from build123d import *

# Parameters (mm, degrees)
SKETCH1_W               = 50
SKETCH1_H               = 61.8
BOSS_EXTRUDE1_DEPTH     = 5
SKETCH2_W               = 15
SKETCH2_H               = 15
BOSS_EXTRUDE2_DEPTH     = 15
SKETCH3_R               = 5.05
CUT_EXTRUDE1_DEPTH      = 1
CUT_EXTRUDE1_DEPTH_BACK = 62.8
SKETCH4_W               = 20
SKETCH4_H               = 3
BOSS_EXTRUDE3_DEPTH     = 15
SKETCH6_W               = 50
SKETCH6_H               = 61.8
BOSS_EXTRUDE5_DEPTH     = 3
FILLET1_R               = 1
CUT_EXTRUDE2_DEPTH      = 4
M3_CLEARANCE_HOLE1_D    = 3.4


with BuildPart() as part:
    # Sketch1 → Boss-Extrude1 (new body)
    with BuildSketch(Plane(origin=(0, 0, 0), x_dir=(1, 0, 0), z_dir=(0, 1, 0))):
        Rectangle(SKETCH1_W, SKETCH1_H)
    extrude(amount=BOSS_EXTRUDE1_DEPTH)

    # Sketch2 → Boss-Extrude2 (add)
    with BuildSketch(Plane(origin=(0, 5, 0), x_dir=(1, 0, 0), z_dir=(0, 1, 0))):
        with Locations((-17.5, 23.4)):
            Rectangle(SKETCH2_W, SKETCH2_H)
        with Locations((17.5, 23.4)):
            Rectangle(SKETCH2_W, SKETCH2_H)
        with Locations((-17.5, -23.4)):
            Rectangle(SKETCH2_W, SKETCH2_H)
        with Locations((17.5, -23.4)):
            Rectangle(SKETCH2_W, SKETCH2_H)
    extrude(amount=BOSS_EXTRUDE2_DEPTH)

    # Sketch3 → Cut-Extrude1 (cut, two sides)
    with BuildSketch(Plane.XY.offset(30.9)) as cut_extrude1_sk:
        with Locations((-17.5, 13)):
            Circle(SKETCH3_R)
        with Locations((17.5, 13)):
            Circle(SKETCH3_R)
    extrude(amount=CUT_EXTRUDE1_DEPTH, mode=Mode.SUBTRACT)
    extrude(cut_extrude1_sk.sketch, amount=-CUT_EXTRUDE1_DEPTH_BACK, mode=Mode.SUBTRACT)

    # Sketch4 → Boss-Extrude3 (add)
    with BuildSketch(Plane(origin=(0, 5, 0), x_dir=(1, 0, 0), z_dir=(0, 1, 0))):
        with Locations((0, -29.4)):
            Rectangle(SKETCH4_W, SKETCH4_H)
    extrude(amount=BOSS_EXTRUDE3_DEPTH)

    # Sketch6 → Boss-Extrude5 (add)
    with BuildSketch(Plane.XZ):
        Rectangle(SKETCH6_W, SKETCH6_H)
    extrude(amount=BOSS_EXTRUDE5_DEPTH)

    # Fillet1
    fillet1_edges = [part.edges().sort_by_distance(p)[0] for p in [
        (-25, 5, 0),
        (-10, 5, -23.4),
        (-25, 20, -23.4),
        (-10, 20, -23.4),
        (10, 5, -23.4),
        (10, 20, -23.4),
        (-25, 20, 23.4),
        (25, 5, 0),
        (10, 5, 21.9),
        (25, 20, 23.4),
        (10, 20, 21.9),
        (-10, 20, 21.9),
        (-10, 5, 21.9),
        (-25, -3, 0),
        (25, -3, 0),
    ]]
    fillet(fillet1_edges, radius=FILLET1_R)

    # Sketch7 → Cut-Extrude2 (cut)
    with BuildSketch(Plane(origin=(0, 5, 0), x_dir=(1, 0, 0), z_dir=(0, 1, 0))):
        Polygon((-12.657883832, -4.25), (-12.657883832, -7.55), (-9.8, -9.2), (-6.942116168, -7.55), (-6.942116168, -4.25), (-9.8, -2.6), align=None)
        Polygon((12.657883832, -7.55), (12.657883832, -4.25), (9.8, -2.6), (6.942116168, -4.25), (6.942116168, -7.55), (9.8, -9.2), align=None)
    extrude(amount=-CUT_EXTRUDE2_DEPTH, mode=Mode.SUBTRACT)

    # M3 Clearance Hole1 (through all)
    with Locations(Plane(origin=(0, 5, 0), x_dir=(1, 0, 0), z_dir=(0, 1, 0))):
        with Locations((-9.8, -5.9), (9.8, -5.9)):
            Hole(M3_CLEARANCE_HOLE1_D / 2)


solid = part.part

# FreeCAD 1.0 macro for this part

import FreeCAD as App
import Part
import Sketcher
from FreeCAD import Vector
Q = App.Units.Quantity


def edges_at(feature, points):
    """Names of the edges that pass closest to the given points."""
    edges = feature.Shape.Edges
    near = lambda p: min(range(len(edges)), key=lambda i: edges[i].distToShape(Part.Vertex(*p))[0])
    return sorted({f"Edge{near(p) + 1}" for p in points})

doc = App.newDocument("Part")
params = doc.addObject("Spreadsheet::Sheet", "Params")
for row, (alias, value) in enumerate([
    ("sketch1_width", "50 mm"),
    ("sketch1_height", "61.8 mm"),
    ("pad1_length", "5 mm"),
    ("sketch2_width", "15 mm"),
    ("pad2_length", "15 mm"),
    ("sketch3_diameter", "10.1 mm"),
    ("sketch4_width", "20 mm"),
    ("sketch4_height", "3 mm"),
    ("pad3_length", "15 mm"),
    ("sketch5_width", "50 mm"),
    ("sketch5_height", "61.8 mm"),
    ("pad4_length", "3 mm"),
    ("fillet_radius", "1 mm"),
    ("sketch6_height", "3.3 mm"),
    ("sketch6_length", "3.3 mm"),
    ("pocket2_length", "4 mm"),
    ("sketch7_diameter", "3.4 mm"),
    ("hole_diameter", "3.4 mm"),
], start=1):
    params.set(f"A{row}", alias)
    params.set(f"B{row}", "=" + value)
    params.setAlias(f"B{row}", alias)

body = doc.addObject("PartDesign::Body", "Body")

# Sketch on XZ plane
sketch1 = doc.addObject("Sketcher::SketchObject", "Sketch")
body.addObject(sketch1)
sketch1.AttachmentSupport = (doc.XZ_Plane, [""])
sketch1.MapMode = "FlatFace"
sketch1.addGeometry([
    Part.LineSegment(Vector(-25, -30.9, 0), Vector(-25, 30.9, 0)),
    Part.LineSegment(Vector(-25, 30.9, 0), Vector(25, 30.9, 0)),
    Part.LineSegment(Vector(25, 30.9, 0), Vector(25, -30.9, 0)),
    Part.LineSegment(Vector(25, -30.9, 0), Vector(-25, -30.9, 0)),
], False)
sketch1.addConstraint([
    Sketcher.Constraint("Coincident", 0, 2, 1, 1),
    Sketcher.Constraint("Coincident", 1, 2, 2, 1),
    Sketcher.Constraint("Coincident", 2, 2, 3, 1),
    Sketcher.Constraint("Coincident", 3, 2, 0, 1),
    Sketcher.Constraint("Vertical", 0),
    Sketcher.Constraint("Horizontal", 1),
    Sketcher.Constraint("Vertical", 2),
    Sketcher.Constraint("Horizontal", 3),
    Sketcher.Constraint("Symmetric", 0, 2, 2, 2, -1, 1),
    Sketcher.Constraint("DistanceX", 1, 1, 1, 2, 50.0),
    Sketcher.Constraint("DistanceY", 0, 1, 0, 2, 61.8),
])
sketch1.setExpression("Constraints[9]", "Params.sketch1_width")
sketch1.setExpression("Constraints[10]", "Params.sketch1_height")
pad1 = doc.addObject("PartDesign::Pad", "Pad")
body.addObject(pad1)
pad1.Profile = sketch1
pad1.setExpression("Length", "Params.pad1_length")
pad1.Reversed = True

# Sketch on XZ plane
sketch2 = doc.addObject("Sketcher::SketchObject", "Sketch001")
body.addObject(sketch2)
sketch2.AttachmentSupport = (doc.XZ_Plane, [""])
sketch2.MapMode = "FlatFace"
sketch2.AttachmentOffset = App.Placement(Vector(0, 0, -5), App.Rotation())
sketch2.addGeometry([
    Part.LineSegment(Vector(-25, -30.9, 0), Vector(-25, -15.9, 0)),  # 0
    Part.LineSegment(Vector(-25, -15.9, 0), Vector(-10, -15.9, 0)),  # 1
    Part.LineSegment(Vector(-10, -15.9, 0), Vector(-10, -30.9, 0)),  # 2
    Part.LineSegment(Vector(-10, -30.9, 0), Vector(-25, -30.9, 0)),  # 3
    Part.LineSegment(Vector(10, -30.9, 0), Vector(10, -15.9, 0)),  # 4
    Part.LineSegment(Vector(10, -15.9, 0), Vector(25, -15.9, 0)),  # 5
    Part.LineSegment(Vector(25, -15.9, 0), Vector(25, -30.9, 0)),  # 6
    Part.LineSegment(Vector(25, -30.9, 0), Vector(10, -30.9, 0)),  # 7
    Part.LineSegment(Vector(-25, 15.9, 0), Vector(-25, 30.9, 0)),  # 8
    Part.LineSegment(Vector(-25, 30.9, 0), Vector(-10, 30.9, 0)),  # 9
    Part.LineSegment(Vector(-10, 30.9, 0), Vector(-10, 15.9, 0)),  # 10
    Part.LineSegment(Vector(-10, 15.9, 0), Vector(-25, 15.9, 0)),  # 11
    Part.LineSegment(Vector(10, 15.9, 0), Vector(10, 30.9, 0)),  # 12
    Part.LineSegment(Vector(10, 30.9, 0), Vector(25, 30.9, 0)),  # 13
    Part.LineSegment(Vector(25, 30.9, 0), Vector(25, 15.9, 0)),  # 14
    Part.LineSegment(Vector(25, 15.9, 0), Vector(10, 15.9, 0)),  # 15
], False)
sketch2.addConstraint([
    Sketcher.Constraint("Coincident", 0, 2, 1, 1),
    Sketcher.Constraint("Coincident", 1, 2, 2, 1),
    Sketcher.Constraint("Coincident", 2, 2, 3, 1),
    Sketcher.Constraint("Coincident", 3, 2, 0, 1),
    Sketcher.Constraint("Coincident", 4, 2, 5, 1),
    Sketcher.Constraint("Coincident", 5, 2, 6, 1),
    Sketcher.Constraint("Coincident", 6, 2, 7, 1),
    Sketcher.Constraint("Coincident", 7, 2, 4, 1),
    Sketcher.Constraint("Coincident", 8, 2, 9, 1),
    Sketcher.Constraint("Coincident", 9, 2, 10, 1),
    Sketcher.Constraint("Coincident", 10, 2, 11, 1),
    Sketcher.Constraint("Coincident", 11, 2, 8, 1),
    Sketcher.Constraint("Coincident", 12, 2, 13, 1),
    Sketcher.Constraint("Coincident", 13, 2, 14, 1),
    Sketcher.Constraint("Coincident", 14, 2, 15, 1),
    Sketcher.Constraint("Coincident", 15, 2, 12, 1),
    Sketcher.Constraint("Vertical", 0),
    Sketcher.Constraint("Horizontal", 1),
    Sketcher.Constraint("Vertical", 2),
    Sketcher.Constraint("Horizontal", 3),
    Sketcher.Constraint("Vertical", 4),
    Sketcher.Constraint("Horizontal", 5),
    Sketcher.Constraint("Vertical", 6),
    Sketcher.Constraint("Horizontal", 7),
    Sketcher.Constraint("Vertical", 8),
    Sketcher.Constraint("Horizontal", 9),
    Sketcher.Constraint("Vertical", 10),
    Sketcher.Constraint("Horizontal", 11),
    Sketcher.Constraint("Vertical", 12),
    Sketcher.Constraint("Horizontal", 13),
    Sketcher.Constraint("Vertical", 14),
    Sketcher.Constraint("Horizontal", 15),
    Sketcher.Constraint("Symmetric", 6, 2, 8, 2, -1, 1),
    Sketcher.Constraint("Symmetric", 4, 2, 10, 2, -1, 1),
    Sketcher.Constraint("Symmetric", 2, 2, 12, 2, -1, 1),
    Sketcher.Constraint("Symmetric", 0, 2, 14, 2, -1, 1),
    Sketcher.Constraint("Symmetric", 1, 2, 4, 2, -2),
    Sketcher.Constraint("Symmetric", 3, 2, 6, 2, -2),
    Sketcher.Constraint("Equal", 15, 0),
    Sketcher.Constraint("DistanceX", 1, 1, 1, 2, 15.0),
    Sketcher.Constraint("DistanceX", 0, 2, -1, 1, 25.0),
    Sketcher.Constraint("DistanceY", 0, 2, -1, 1, 15.9),
])
sketch2.setExpression("Constraints[39]", "Params.sketch2_width")
pad2 = doc.addObject("PartDesign::Pad", "Pad001")
body.addObject(pad2)
pad2.Profile = sketch2
pad2.setExpression("Length", "Params.pad2_length")
pad2.Reversed = True

# Sketch on XY plane
sketch3 = doc.addObject("Sketcher::SketchObject", "Sketch002")
body.addObject(sketch3)
sketch3.AttachmentSupport = (doc.XY_Plane, [""])
sketch3.MapMode = "FlatFace"
sketch3.AttachmentOffset = App.Placement(Vector(0, 0, 30.9), App.Rotation())
sketch3.addGeometry([
    Part.Circle(Vector(-17.5, 13, 0), Vector(0, 0, 1), 5.05),
    Part.Circle(Vector(17.5, 13, 0), Vector(0, 0, 1), 5.05),
], False)
sketch3.addConstraint([
    Sketcher.Constraint("Equal", 0, 1),
    Sketcher.Constraint("Symmetric", 0, 3, 1, 3, -2),
    Sketcher.Constraint("Diameter", 0, 10.1),
    Sketcher.Constraint("DistanceY", -1, 1, 0, 3, 13.0),
    Sketcher.Constraint("DistanceX", 0, 3, 1, 3, 35.0),
])
sketch3.setExpression("Constraints[2]", "Params.sketch3_diameter")
pocket1 = doc.addObject("PartDesign::Pocket", "Pocket")
body.addObject(pocket1)
pocket1.Profile = sketch3
pocket1.Type = "ThroughAll"
pocket1.Midplane = True

# Sketch on XZ plane
sketch4 = doc.addObject("Sketcher::SketchObject", "Sketch003")
body.addObject(sketch4)
sketch4.AttachmentSupport = (doc.XZ_Plane, [""])
sketch4.MapMode = "FlatFace"
sketch4.AttachmentOffset = App.Placement(Vector(0, 0, -5), App.Rotation())
sketch4.addGeometry([
    Part.LineSegment(Vector(-10, 27.9, 0), Vector(-10, 30.9, 0)),
    Part.LineSegment(Vector(-10, 30.9, 0), Vector(10, 30.9, 0)),
    Part.LineSegment(Vector(10, 30.9, 0), Vector(10, 27.9, 0)),
    Part.LineSegment(Vector(10, 27.9, 0), Vector(-10, 27.9, 0)),
], False)
sketch4.addConstraint([
    Sketcher.Constraint("Coincident", 0, 2, 1, 1),
    Sketcher.Constraint("Coincident", 1, 2, 2, 1),
    Sketcher.Constraint("Coincident", 2, 2, 3, 1),
    Sketcher.Constraint("Coincident", 3, 2, 0, 1),
    Sketcher.Constraint("Vertical", 0),
    Sketcher.Constraint("Horizontal", 1),
    Sketcher.Constraint("Vertical", 2),
    Sketcher.Constraint("Horizontal", 3),
    Sketcher.Constraint("DistanceX", 1, 1, 1, 2, 20.0),
    Sketcher.Constraint("DistanceY", 0, 1, 0, 2, 3.0),
    Sketcher.Constraint("DistanceX", 0, 2, -1, 1, 10.0),
    Sketcher.Constraint("DistanceY", -1, 1, 0, 2, 30.9),
])
sketch4.setExpression("Constraints[8]", "Params.sketch4_width")
sketch4.setExpression("Constraints[9]", "Params.sketch4_height")
pad3 = doc.addObject("PartDesign::Pad", "Pad002")
body.addObject(pad3)
pad3.Profile = sketch4
pad3.setExpression("Length", "Params.pad3_length")
pad3.Reversed = True

# Sketch on XZ plane
sketch5 = doc.addObject("Sketcher::SketchObject", "Sketch004")
body.addObject(sketch5)
sketch5.AttachmentSupport = (doc.XZ_Plane, [""])
sketch5.MapMode = "FlatFace"
sketch5.addGeometry([
    Part.LineSegment(Vector(-25, 30.9, 0), Vector(-25, -30.9, 0)),
    Part.LineSegment(Vector(-25, -30.9, 0), Vector(25, -30.9, 0)),
    Part.LineSegment(Vector(25, -30.9, 0), Vector(25, 30.9, 0)),
    Part.LineSegment(Vector(25, 30.9, 0), Vector(-25, 30.9, 0)),
], False)
sketch5.addConstraint([
    Sketcher.Constraint("Coincident", 0, 2, 1, 1),
    Sketcher.Constraint("Coincident", 1, 2, 2, 1),
    Sketcher.Constraint("Coincident", 2, 2, 3, 1),
    Sketcher.Constraint("Coincident", 3, 2, 0, 1),
    Sketcher.Constraint("Vertical", 0),
    Sketcher.Constraint("Horizontal", 1),
    Sketcher.Constraint("Vertical", 2),
    Sketcher.Constraint("Horizontal", 3),
    Sketcher.Constraint("Symmetric", 0, 2, 2, 2, -1, 1),
    Sketcher.Constraint("DistanceX", 1, 1, 1, 2, 50.0),
    Sketcher.Constraint("DistanceY", 0, 2, 0, 1, 61.8),
])
sketch5.setExpression("Constraints[9]", "Params.sketch5_width")
sketch5.setExpression("Constraints[10]", "Params.sketch5_height")
pad4 = doc.addObject("PartDesign::Pad", "Pad003")
body.addObject(pad4)
pad4.Profile = sketch5
pad4.setExpression("Length", "Params.pad4_length")
doc.recompute()

fillet = doc.addObject("PartDesign::Fillet", "Fillet")
body.addObject(fillet)
fillet.Base = (pad4, edges_at(pad4, [
    (-25, 5, 0),
    (-10, 5, -23.4),
    (-25, 20, -23.4),
    (-10, 20, -23.4),
    (10, 5, -23.4),
    (10, 20, -23.4),
    (-25, 20, 23.4),
    (25, 5, 0),
    (10, 5, 21.9),
    (25, 20, 23.4),
    (10, 20, 21.9),
    (-10, 20, 21.9),
    (-10, 5, 21.9),
    (-25, -3, 0),
    (25, -3, 0),
]))
fillet.setExpression("Radius", "Params.fillet_radius")

# Sketch on XZ plane
sketch6 = doc.addObject("Sketcher::SketchObject", "Sketch005")
body.addObject(sketch6)
sketch6.AttachmentSupport = (doc.XZ_Plane, [""])
sketch6.MapMode = "FlatFace"
sketch6.AttachmentOffset = App.Placement(Vector(0, 0, -5), App.Rotation())
sketch6.addGeometry([
    Part.LineSegment(Vector(-12.657884, 4.25, 0), Vector(-12.657884, 7.55, 0)),  # 0
    Part.LineSegment(Vector(-12.657884, 7.55, 0), Vector(-9.8, 9.2, 0)),  # 1
    Part.LineSegment(Vector(-9.8, 9.2, 0), Vector(-6.942116, 7.55, 0)),  # 2
    Part.LineSegment(Vector(-6.942116, 7.55, 0), Vector(-6.942116, 4.25, 0)),  # 3
    Part.LineSegment(Vector(-6.942116, 4.25, 0), Vector(-9.8, 2.6, 0)),  # 4
    Part.LineSegment(Vector(-9.8, 2.6, 0), Vector(-12.657884, 4.25, 0)),  # 5
    Part.LineSegment(Vector(12.657884, 7.55, 0), Vector(12.657884, 4.25, 0)),  # 6
    Part.LineSegment(Vector(12.657884, 4.25, 0), Vector(9.8, 2.6, 0)),  # 7
    Part.LineSegment(Vector(9.8, 2.6, 0), Vector(6.942116, 4.25, 0)),  # 8
    Part.LineSegment(Vector(6.942116, 4.25, 0), Vector(6.942116, 7.55, 0)),  # 9
    Part.LineSegment(Vector(6.942116, 7.55, 0), Vector(9.8, 9.2, 0)),  # 10
    Part.LineSegment(Vector(9.8, 9.2, 0), Vector(12.657884, 7.55, 0)),  # 11
], False)
sketch6.addConstraint([
    Sketcher.Constraint("Coincident", 0, 2, 1, 1),
    Sketcher.Constraint("Coincident", 1, 2, 2, 1),
    Sketcher.Constraint("Coincident", 2, 2, 3, 1),
    Sketcher.Constraint("Coincident", 3, 2, 4, 1),
    Sketcher.Constraint("Coincident", 4, 2, 5, 1),
    Sketcher.Constraint("Coincident", 5, 2, 0, 1),
    Sketcher.Constraint("Coincident", 6, 2, 7, 1),
    Sketcher.Constraint("Coincident", 7, 2, 8, 1),
    Sketcher.Constraint("Coincident", 8, 2, 9, 1),
    Sketcher.Constraint("Coincident", 9, 2, 10, 1),
    Sketcher.Constraint("Coincident", 10, 2, 11, 1),
    Sketcher.Constraint("Coincident", 11, 2, 6, 1),
    Sketcher.Constraint("Vertical", 0),
    Sketcher.Constraint("Vertical", 3),
    Sketcher.Constraint("Vertical", 6),
    Sketcher.Constraint("Vertical", 9),
    Sketcher.Constraint("Symmetric", 5, 2, 6, 2, -2),
    Sketcher.Constraint("Symmetric", 4, 2, 7, 2, -2),
    Sketcher.Constraint("Symmetric", 3, 2, 8, 2, -2),
    Sketcher.Constraint("Symmetric", 1, 2, 10, 2, -2),
    Sketcher.Constraint("Parallel", 1, 4),
    Sketcher.Constraint("Parallel", 2, 5),
    Sketcher.Constraint("Parallel", 4, 7),
    Sketcher.Constraint("Parallel", 7, 10),
    Sketcher.Constraint("Parallel", 8, 11),
    Sketcher.Constraint("Horizontal", 0, 2, 2, 2),
    Sketcher.Constraint("Horizontal", 3, 2, 5, 2),
    Sketcher.Constraint("Angle", 1, Q("30 deg")),
    Sketcher.Constraint("DistanceY", 0, 1, 0, 2, 3.3),
    Sketcher.Constraint("Distance", 1, 3.3),
    Sketcher.Constraint("DistanceX", 1, 2, -1, 1, 9.8),
    Sketcher.Constraint("DistanceY", -1, 1, 1, 2, 9.2),
])
sketch6.setExpression("Constraints[28]", "Params.sketch6_height")
sketch6.setExpression("Constraints[29]", "Params.sketch6_length")
pocket2 = doc.addObject("PartDesign::Pocket", "Pocket001")
body.addObject(pocket2)
pocket2.Profile = sketch6
pocket2.setExpression("Length", "Params.pocket2_length")
pocket2.Reversed = True

# Sketch on XZ plane
sketch7 = doc.addObject("Sketcher::SketchObject", "Sketch006")
body.addObject(sketch7)
sketch7.AttachmentSupport = (doc.XZ_Plane, [""])
sketch7.MapMode = "FlatFace"
sketch7.AttachmentOffset = App.Placement(Vector(0, 0, -5), App.Rotation())
sketch7.addGeometry([
    Part.Circle(Vector(-9.8, 5.9, 0), Vector(0, 0, 1), 1.7),
    Part.Circle(Vector(9.8, 5.9, 0), Vector(0, 0, 1), 1.7),
], False)
sketch7.addConstraint([
    Sketcher.Constraint("Equal", 0, 1),
    Sketcher.Constraint("Symmetric", 0, 3, 1, 3, -2),
    Sketcher.Constraint("Diameter", 0, 3.4),
    Sketcher.Constraint("DistanceX", 0, 3, -1, 1, 9.8),
    Sketcher.Constraint("DistanceY", -1, 1, 0, 3, 5.9),
])
sketch7.setExpression("Constraints[2]", "Params.sketch7_diameter")
doc.recompute()
hole = doc.addObject("PartDesign::Hole", "Hole")
body.addObject(hole)
hole.Profile = sketch7
hole.ThreadType = "None"
hole.setExpression("Diameter", "Params.hole_diameter")
hole.DepthType = "ThroughAll"
hole.Reversed = True

doc.recompute()
